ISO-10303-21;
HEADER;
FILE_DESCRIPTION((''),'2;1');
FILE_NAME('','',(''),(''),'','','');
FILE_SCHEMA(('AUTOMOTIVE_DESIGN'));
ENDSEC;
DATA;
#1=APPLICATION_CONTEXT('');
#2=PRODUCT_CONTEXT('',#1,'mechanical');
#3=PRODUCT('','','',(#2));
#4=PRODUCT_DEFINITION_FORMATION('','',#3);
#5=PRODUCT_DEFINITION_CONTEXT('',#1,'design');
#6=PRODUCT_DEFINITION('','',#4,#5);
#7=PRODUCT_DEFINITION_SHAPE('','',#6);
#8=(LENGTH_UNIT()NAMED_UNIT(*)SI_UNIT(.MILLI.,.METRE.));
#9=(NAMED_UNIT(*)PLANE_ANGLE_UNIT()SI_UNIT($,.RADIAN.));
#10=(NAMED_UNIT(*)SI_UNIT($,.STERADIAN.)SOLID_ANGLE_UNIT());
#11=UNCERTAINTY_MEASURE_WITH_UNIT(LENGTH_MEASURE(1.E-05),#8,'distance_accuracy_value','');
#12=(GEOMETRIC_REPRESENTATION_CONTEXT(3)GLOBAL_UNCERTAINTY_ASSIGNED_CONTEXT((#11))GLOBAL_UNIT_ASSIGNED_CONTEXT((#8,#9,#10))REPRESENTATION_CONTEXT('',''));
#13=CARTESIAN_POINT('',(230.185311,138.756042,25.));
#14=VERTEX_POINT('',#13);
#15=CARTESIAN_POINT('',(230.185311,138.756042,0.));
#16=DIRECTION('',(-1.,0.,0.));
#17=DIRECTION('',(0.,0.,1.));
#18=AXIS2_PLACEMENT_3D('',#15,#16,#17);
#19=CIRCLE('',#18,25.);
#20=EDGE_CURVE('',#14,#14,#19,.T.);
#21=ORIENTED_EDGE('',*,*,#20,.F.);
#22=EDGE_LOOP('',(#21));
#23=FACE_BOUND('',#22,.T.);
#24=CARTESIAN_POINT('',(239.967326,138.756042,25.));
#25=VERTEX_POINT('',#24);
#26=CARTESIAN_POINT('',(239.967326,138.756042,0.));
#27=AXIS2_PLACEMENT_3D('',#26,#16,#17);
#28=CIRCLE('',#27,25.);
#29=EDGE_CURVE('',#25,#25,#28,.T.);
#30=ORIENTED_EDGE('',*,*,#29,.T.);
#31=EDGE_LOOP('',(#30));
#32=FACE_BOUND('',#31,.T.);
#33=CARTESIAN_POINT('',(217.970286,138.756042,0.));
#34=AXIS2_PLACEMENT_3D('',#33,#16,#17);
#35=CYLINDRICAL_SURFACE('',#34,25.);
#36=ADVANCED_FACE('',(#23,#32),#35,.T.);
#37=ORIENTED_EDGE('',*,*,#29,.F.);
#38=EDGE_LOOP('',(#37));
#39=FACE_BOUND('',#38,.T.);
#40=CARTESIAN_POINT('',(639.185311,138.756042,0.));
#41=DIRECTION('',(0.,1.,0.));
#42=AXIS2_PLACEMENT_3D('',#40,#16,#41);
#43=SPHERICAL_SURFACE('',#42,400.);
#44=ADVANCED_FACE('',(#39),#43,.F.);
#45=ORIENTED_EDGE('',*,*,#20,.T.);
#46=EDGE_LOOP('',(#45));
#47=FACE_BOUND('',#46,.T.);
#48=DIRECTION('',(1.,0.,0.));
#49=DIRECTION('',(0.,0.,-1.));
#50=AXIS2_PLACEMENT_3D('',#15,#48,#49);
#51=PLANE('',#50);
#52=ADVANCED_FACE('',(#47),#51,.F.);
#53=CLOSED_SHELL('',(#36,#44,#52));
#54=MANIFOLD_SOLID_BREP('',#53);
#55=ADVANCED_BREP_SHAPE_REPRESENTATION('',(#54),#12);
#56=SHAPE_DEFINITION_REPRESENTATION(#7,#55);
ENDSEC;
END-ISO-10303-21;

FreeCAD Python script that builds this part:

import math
import FreeCAD as App
import Part
import Sketcher
from FreeCAD import Vector

doc = App.newDocument("Part")
body = doc.addObject("PartDesign::Body", "Body")

sketch1 = doc.addObject("Sketcher::SketchObject", "Sketch")
body.addObject(sketch1)
sketch1.AttachmentSupport = (doc.XY_Plane, [""])
sketch1.MapMode = "FlatFace"
sketch1.addGeometry([
    Part.LineSegment(Vector(230.185311, 163.756042, 0), Vector(230.185311, 138.756042, 0)),
    Part.LineSegment(Vector(230.185311, 138.756042, 0), Vector(239.185311, 138.756042, 0)),
    Part.ArcOfCircle(Part.Circle(Vector(639.185312, 138.756042, 0), Vector(0, 0, 1), 400.000001), math.radians(176.416678), math.radians(180)),
    Part.LineSegment(Vector(239.967325, 163.756042, 0), Vector(230.185311, 163.756042, 0)),
], False)
sketch1.addGeometry(Part.LineSegment(Vector(230.185311, 138.756042, 0), Vector(639.185312, 138.756042, 0)), True)
sketch1.addConstraint([
    Sketcher.Constraint("Coincident", 0, 2, 1, 1),
    Sketcher.Constraint("Coincident", 1, 2, 2, 2),
    Sketcher.Constraint("Coincident", 2, 1, 3, 1),
    Sketcher.Constraint("Coincident", 3, 2, 0, 1),
    Sketcher.Constraint("Vertical", 0),
    Sketcher.Constraint("Horizontal", 1),
    Sketcher.Constraint("Horizontal", 3),
    Sketcher.Constraint("Horizontal", 4),
    Sketcher.Constraint("Coincident", 4, 1, 0, 2),
    Sketcher.Constraint("Coincident", 4, 2, 2, 3),
    Sketcher.Constraint("Radius", 2, 400.000001),
    Sketcher.Constraint("DistanceX", 1, 1, 1, 2, 9.0),
    Sketcher.Constraint("DistanceY", 0, 2, 0, 1, 25.0),
    Sketcher.Constraint("DistanceX", -1, 1, 2, 3, 639.185312),
    Sketcher.Constraint("DistanceY", -1, 1, 2, 3, 138.756042),
])
revolution = doc.addObject("PartDesign::Revolution", "Revolution")
body.addObject(revolution)
revolution.Profile = sketch1
revolution.ReferenceAxis = (sketch1, ["Axis0"])
revolution.Angle = 360

doc.recompute()
